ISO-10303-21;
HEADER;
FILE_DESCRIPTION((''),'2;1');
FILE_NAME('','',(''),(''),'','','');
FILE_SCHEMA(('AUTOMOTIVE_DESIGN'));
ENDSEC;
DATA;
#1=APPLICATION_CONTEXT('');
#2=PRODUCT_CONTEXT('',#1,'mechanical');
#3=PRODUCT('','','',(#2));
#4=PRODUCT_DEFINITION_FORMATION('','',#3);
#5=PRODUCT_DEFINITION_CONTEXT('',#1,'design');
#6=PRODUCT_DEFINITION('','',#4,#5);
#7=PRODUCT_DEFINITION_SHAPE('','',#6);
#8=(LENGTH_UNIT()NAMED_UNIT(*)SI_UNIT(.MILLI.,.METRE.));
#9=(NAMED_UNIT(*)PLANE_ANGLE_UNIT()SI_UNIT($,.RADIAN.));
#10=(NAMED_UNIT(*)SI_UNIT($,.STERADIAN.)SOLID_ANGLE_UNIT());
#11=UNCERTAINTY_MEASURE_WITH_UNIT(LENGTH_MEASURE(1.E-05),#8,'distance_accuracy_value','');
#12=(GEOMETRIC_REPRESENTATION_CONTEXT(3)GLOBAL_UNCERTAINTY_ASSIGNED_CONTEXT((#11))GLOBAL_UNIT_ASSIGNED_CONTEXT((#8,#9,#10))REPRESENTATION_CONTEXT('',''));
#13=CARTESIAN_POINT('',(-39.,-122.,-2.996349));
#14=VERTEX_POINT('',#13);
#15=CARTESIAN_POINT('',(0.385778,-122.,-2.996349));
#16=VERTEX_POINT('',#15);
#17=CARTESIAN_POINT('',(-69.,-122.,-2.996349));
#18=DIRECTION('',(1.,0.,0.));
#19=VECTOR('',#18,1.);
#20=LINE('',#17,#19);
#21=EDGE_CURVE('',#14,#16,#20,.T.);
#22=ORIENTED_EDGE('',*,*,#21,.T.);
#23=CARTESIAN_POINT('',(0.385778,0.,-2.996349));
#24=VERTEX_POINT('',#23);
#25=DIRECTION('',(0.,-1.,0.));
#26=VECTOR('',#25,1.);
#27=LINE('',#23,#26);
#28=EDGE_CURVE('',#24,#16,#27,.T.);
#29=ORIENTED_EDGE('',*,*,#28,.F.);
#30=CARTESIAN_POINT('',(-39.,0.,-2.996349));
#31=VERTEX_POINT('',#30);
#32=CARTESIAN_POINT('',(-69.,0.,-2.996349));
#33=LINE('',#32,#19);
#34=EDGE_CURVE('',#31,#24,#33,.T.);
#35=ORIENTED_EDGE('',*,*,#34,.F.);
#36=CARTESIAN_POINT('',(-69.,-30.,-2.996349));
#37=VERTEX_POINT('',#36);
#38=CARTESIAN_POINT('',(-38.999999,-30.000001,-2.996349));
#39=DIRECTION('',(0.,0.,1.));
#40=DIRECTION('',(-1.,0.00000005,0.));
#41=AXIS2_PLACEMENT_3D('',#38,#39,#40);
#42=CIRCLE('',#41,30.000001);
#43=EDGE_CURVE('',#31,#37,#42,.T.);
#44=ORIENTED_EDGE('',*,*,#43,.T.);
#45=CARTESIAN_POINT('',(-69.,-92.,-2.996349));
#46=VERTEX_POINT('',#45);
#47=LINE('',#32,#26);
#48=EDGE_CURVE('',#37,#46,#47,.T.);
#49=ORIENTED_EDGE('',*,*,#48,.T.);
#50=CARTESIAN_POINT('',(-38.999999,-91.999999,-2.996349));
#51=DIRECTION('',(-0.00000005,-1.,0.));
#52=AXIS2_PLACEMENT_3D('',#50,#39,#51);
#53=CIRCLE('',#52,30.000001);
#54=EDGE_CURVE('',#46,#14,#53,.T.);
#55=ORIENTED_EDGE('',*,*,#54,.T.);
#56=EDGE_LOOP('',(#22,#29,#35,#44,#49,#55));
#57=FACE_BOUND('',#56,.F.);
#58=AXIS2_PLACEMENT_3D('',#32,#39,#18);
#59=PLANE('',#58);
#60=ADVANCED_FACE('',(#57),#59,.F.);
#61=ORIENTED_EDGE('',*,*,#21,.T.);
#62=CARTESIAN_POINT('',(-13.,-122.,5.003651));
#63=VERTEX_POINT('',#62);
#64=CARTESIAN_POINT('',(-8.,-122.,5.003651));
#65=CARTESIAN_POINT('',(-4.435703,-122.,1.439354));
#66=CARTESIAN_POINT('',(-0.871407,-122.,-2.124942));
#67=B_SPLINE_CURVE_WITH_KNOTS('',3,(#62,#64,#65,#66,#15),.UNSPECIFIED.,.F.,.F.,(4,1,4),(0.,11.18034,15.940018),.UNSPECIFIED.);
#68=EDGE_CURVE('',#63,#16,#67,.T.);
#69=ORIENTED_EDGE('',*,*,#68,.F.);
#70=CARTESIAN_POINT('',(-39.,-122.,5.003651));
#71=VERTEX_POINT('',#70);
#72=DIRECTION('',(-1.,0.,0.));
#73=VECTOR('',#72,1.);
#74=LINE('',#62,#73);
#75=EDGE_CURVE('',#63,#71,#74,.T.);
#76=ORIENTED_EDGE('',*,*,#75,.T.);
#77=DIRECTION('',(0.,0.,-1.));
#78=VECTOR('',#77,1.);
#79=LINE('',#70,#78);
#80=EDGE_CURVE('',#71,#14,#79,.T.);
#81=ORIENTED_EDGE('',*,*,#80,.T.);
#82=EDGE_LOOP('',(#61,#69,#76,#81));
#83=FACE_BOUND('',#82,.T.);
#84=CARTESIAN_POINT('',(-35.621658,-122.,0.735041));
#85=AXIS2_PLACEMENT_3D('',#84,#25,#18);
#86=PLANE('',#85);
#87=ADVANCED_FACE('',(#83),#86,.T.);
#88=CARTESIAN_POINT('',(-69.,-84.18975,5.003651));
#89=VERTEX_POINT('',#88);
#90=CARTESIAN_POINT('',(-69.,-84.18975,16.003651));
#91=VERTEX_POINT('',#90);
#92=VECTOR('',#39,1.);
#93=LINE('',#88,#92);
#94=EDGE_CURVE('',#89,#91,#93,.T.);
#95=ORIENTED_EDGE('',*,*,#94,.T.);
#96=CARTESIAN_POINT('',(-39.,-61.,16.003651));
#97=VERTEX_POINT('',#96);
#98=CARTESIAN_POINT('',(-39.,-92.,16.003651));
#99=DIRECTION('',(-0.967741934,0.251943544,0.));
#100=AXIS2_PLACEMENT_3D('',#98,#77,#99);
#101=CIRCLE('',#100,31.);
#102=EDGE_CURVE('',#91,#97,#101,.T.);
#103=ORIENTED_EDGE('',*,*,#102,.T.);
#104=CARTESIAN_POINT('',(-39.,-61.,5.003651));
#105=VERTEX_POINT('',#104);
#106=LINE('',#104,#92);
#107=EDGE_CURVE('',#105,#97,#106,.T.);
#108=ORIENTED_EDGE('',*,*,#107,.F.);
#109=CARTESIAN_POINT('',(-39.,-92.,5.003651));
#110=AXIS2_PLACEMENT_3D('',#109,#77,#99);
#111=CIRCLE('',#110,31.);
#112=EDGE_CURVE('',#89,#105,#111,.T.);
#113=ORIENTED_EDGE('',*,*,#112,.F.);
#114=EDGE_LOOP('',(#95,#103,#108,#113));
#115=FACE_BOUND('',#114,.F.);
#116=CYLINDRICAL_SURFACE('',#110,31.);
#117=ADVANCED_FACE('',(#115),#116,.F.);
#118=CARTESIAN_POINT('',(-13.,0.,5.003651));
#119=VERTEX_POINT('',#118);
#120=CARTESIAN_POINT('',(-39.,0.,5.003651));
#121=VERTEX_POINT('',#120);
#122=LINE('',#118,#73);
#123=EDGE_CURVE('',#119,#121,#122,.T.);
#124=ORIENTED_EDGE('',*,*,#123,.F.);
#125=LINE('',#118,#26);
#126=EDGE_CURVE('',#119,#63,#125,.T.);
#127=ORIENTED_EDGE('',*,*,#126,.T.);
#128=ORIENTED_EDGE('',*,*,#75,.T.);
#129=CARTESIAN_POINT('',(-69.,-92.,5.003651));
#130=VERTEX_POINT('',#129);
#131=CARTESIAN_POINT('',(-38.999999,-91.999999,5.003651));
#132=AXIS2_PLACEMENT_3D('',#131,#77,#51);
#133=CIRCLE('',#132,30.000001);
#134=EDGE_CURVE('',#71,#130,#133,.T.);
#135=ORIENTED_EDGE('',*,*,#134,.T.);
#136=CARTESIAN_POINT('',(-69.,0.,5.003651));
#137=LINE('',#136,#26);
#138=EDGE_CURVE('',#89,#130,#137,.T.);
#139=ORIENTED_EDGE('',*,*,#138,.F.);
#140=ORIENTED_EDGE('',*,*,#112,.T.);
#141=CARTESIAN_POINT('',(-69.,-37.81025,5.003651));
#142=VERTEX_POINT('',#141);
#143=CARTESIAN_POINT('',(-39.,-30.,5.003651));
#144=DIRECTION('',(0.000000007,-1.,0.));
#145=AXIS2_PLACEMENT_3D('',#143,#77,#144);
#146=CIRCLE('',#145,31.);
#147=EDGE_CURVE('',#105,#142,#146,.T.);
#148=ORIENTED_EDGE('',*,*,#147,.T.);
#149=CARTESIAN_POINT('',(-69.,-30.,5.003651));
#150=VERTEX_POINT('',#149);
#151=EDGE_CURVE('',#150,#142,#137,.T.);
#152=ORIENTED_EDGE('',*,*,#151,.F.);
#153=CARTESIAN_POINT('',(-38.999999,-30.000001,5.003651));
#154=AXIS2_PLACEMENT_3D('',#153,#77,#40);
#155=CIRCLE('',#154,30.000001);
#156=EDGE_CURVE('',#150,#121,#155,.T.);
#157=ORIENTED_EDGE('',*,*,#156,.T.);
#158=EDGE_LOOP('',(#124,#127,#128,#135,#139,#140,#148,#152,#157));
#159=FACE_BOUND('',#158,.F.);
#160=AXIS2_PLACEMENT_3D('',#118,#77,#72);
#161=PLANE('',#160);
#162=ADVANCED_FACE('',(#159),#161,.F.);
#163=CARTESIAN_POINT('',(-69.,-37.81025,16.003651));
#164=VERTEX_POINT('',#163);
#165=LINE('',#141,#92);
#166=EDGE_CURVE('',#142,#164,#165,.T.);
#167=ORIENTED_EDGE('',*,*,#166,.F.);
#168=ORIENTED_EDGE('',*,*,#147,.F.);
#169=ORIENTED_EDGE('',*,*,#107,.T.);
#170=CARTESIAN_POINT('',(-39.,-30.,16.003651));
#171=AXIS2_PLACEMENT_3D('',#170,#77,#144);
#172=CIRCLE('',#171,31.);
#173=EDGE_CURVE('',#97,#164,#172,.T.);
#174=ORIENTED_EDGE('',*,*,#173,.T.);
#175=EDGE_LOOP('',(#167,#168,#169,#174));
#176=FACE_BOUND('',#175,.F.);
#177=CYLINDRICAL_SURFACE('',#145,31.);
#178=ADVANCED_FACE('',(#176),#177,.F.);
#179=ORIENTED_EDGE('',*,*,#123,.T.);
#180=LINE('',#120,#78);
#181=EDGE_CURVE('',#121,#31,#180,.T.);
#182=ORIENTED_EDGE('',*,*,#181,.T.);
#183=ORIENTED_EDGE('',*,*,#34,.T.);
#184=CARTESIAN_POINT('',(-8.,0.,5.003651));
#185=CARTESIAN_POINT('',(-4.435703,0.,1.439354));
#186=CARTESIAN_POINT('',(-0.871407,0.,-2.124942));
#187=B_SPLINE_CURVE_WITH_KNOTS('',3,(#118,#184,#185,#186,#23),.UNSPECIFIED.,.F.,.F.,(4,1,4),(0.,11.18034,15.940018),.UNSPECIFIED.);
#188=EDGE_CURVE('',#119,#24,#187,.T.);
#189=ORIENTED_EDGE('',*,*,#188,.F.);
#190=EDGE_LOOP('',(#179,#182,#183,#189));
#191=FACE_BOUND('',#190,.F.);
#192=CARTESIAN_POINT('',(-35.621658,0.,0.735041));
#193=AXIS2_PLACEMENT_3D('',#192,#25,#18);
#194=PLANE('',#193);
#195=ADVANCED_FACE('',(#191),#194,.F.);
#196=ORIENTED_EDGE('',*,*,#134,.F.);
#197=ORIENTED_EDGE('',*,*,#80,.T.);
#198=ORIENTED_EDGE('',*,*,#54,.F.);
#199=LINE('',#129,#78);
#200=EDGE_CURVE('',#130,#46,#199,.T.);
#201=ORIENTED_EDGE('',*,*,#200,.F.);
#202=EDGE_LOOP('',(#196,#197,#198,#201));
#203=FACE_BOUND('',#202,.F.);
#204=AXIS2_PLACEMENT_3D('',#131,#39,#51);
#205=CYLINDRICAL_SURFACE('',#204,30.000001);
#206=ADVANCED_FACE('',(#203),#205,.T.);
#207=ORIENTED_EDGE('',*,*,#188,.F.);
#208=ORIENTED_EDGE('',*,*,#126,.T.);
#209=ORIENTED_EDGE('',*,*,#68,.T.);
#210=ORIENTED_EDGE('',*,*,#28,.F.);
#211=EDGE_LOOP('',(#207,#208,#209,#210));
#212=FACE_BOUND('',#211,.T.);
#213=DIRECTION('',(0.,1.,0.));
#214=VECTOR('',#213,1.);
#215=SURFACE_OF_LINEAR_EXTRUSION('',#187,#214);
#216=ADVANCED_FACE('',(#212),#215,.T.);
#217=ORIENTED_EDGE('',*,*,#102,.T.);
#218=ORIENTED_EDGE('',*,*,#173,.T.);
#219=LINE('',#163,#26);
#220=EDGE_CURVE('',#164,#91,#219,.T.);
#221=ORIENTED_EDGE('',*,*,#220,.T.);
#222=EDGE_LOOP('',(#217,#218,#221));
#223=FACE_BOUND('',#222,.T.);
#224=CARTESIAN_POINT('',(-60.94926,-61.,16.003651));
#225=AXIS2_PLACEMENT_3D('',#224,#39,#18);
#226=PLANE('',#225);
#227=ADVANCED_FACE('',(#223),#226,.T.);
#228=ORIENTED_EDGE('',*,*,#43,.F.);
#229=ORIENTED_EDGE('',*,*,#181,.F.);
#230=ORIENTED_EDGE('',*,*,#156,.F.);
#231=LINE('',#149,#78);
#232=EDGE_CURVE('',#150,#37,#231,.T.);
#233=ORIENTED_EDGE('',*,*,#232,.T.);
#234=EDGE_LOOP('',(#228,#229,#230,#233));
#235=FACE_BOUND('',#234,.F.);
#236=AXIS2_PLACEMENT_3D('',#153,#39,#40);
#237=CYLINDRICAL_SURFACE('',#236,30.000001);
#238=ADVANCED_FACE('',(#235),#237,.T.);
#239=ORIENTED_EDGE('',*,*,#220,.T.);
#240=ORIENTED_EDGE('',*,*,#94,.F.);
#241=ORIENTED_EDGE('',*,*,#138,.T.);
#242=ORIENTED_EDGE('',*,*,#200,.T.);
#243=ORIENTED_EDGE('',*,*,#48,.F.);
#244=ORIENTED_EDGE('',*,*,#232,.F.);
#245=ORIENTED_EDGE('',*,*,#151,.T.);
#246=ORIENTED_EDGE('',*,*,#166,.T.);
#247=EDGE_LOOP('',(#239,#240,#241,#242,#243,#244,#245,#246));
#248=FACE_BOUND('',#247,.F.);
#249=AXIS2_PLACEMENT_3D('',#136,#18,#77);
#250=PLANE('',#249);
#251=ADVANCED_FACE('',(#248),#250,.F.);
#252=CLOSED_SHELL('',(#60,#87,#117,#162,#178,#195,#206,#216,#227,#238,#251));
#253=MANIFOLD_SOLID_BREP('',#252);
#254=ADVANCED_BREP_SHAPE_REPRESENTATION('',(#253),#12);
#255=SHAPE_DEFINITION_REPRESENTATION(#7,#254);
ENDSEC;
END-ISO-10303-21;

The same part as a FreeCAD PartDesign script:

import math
import FreeCAD as App
import Part
import Sketcher

doc = App.newDocument("Part")
body = doc.addObject("PartDesign::Body", "Body")

sketch1 = body.newObject("Sketcher::SketchObject", "Sketch")
sketch1.AttachmentSupport = (doc.getObject("XZ_Plane"), [""])
sketch1.MapMode = "FlatFace"
sketch1.addGeometry(Part.LineSegment(App.Vector(-13, 5.003651, 0), App.Vector(-69, 5.003651, 0)), False)
sketch1.addGeometry(Part.LineSegment(App.Vector(-69, 5.003651, 0), App.Vector(-69, -2.996349, 0)), False)
sketch1.addGeometry(Part.LineSegment(App.Vector(-69, -2.996349, 0), App.Vector(0.385778, -2.996349, 0)), False)
sketch1.addGeometry(Part.BSplineCurve([App.Vector(-13, 5.003651, 0), App.Vector(-8, 5.003651, 0), App.Vector(-4.435703, 1.439354, 0), App.Vector(-0.871407, -2.124942, 0), App.Vector(0.385778, -2.996349, 0)], [4, 1, 4], [0, 11.18034, 15.940018], False, 3, [1, 1, 1, 1, 1], False), False)
sketch1.addConstraint(Sketcher.Constraint("Block", 3))
sketch1.addConstraint(Sketcher.Constraint("Coincident", 0, 2, 1, 1))
sketch1.addConstraint(Sketcher.Constraint("Coincident", 1, 2, 2, 1))
sketch1.addConstraint(Sketcher.Constraint("Coincident", 2, 2, 3, 2))
sketch1.addConstraint(Sketcher.Constraint("Coincident", 3, 1, 0, 1))
sketch1.addConstraint(Sketcher.Constraint("Horizontal", 0))
sketch1.addConstraint(Sketcher.Constraint("Vertical", 1))
sketch1.addConstraint(Sketcher.Constraint("Horizontal", 2))
sketch1.addConstraint(Sketcher.Constraint("DistanceX", 0, 2, 0, 1, 56.0))
pad1 = body.newObject("PartDesign::Pad", "Pad")
pad1.Profile = sketch1
pad1.Length = 122

sketch2 = body.newObject("Sketcher::SketchObject", "Sketch001")
sketch2.AttachmentSupport = (doc.getObject("XY_Plane"), [""])
sketch2.MapMode = "FlatFace"
sketch2.AttachmentOffset = App.Placement(App.Vector(0, 0, 5.003651), App.Rotation())
sketch2.addGeometry(Part.ArcOfCircle(Part.Circle(App.Vector(-39, -92, 0), App.Vector(0, 0, 1), 31), math.radians(90), math.radians(165)), False)
sketch2.addGeometry(Part.ArcOfCircle(Part.Circle(App.Vector(-39, -30, 0), App.Vector(0, 0, 1), 31), math.radians(-165), math.radians(-90)), False)
sketch2.addGeometry(Part.LineSegment(App.Vector(-69, -38, 0), App.Vector(-69, -84, 0)), False)
sketch2.addConstraint(Sketcher.Constraint("Tangent", 0, 1, 1, 2))
sketch2.addConstraint(Sketcher.Constraint("Coincident", 1, 1, 2, 1))
sketch2.addConstraint(Sketcher.Constraint("Coincident", 2, 2, 0, 2))
sketch2.addConstraint(Sketcher.Constraint("Vertical", 2))
sketch2.addConstraint(Sketcher.Constraint("Equal", 0, 1))
sketch2.addConstraint(Sketcher.Constraint("Vertical", 0, 3, 1, 3))
sketch2.addConstraint(Sketcher.Constraint("Radius", 0, 31.0))
sketch2.addConstraint(Sketcher.Constraint("DistanceX", 0, 3, -1, 1, 39.0))
sketch2.addConstraint(Sketcher.Constraint("DistanceY", 0, 3, -1, 1, 92.0))
sketch2.addConstraint(Sketcher.Constraint("DistanceX", 1, 1, -1, 1, 69.0))
pad2 = body.newObject("PartDesign::Pad", "Pad001")
pad2.Profile = sketch2
pad2.Length = 11

sketch3 = body.newObject("Sketcher::SketchObject", "Sketch002")
sketch3.AttachmentSupport = (doc.getObject("XY_Plane"), [""])
sketch3.MapMode = "FlatFace"
sketch3.AttachmentOffset = App.Placement(App.Vector(0, 0, 5.003651), App.Rotation())
sketch3.addGeometry(Part.ArcOfCircle(Part.Circle(App.Vector(-39, -92, 0), App.Vector(0, 0, 1), 30), math.radians(-180), math.radians(-90)), False)
sketch3.addGeometry(Part.LineSegment(App.Vector(-69, -92, 0), App.Vector(-69, -122, 0)), False)
sketch3.addGeometry(Part.LineSegment(App.Vector(-69, -122, 0), App.Vector(-39, -122, 0)), False)
sketch3.addGeometry(Part.LineSegment(App.Vector(-69, 0, 0), App.Vector(-69, -30, 0)), False)
sketch3.addGeometry(Part.ArcOfCircle(Part.Circle(App.Vector(-39, -30, 0), App.Vector(0, 0, 1), 30), math.radians(90), math.radians(180)), False)
sketch3.addGeometry(Part.LineSegment(App.Vector(-39, 0, 0), App.Vector(-69, 0, 0)), False)
sketch3.addConstraint(Sketcher.Constraint("Tangent", 0, 1, 1, 1))
sketch3.addConstraint(Sketcher.Constraint("Coincident", 1, 2, 2, 1))
sketch3.addConstraint(Sketcher.Constraint("Tangent", 2, 2, 0, 2))
sketch3.addConstraint(Sketcher.Constraint("Tangent", 3, 2, 4, 2))
sketch3.addConstraint(Sketcher.Constraint("Tangent", 4, 1, 5, 1))
sketch3.addConstraint(Sketcher.Constraint("Coincident", 5, 2, 3, 1))
sketch3.addConstraint(Sketcher.Constraint("Vertical", 1))
sketch3.addConstraint(Sketcher.Constraint("Horizontal", 2))
sketch3.addConstraint(Sketcher.Constraint("Vertical", 3))
sketch3.addConstraint(Sketcher.Constraint("Horizontal", 5))
sketch3.addConstraint(Sketcher.Constraint("Equal", 0, 4))
sketch3.addConstraint(Sketcher.Constraint("PointOnObject", 4, 1, -1))
sketch3.addConstraint(Sketcher.Constraint("Vertical", 0, 3, 4, 3))
sketch3.addConstraint(Sketcher.Constraint("Radius", 0, 30.000001))
sketch3.addConstraint(Sketcher.Constraint("DistanceX", 0, 3, -1, 1, 38.999999))
sketch3.addConstraint(Sketcher.Constraint("DistanceY", 0, 3, -1, 1, 91.999999))
pocket1 = body.newObject("PartDesign::Pocket", "Pocket")
pocket1.Profile = sketch3
pocket1.Type = "ThroughAll"

doc.recompute()
